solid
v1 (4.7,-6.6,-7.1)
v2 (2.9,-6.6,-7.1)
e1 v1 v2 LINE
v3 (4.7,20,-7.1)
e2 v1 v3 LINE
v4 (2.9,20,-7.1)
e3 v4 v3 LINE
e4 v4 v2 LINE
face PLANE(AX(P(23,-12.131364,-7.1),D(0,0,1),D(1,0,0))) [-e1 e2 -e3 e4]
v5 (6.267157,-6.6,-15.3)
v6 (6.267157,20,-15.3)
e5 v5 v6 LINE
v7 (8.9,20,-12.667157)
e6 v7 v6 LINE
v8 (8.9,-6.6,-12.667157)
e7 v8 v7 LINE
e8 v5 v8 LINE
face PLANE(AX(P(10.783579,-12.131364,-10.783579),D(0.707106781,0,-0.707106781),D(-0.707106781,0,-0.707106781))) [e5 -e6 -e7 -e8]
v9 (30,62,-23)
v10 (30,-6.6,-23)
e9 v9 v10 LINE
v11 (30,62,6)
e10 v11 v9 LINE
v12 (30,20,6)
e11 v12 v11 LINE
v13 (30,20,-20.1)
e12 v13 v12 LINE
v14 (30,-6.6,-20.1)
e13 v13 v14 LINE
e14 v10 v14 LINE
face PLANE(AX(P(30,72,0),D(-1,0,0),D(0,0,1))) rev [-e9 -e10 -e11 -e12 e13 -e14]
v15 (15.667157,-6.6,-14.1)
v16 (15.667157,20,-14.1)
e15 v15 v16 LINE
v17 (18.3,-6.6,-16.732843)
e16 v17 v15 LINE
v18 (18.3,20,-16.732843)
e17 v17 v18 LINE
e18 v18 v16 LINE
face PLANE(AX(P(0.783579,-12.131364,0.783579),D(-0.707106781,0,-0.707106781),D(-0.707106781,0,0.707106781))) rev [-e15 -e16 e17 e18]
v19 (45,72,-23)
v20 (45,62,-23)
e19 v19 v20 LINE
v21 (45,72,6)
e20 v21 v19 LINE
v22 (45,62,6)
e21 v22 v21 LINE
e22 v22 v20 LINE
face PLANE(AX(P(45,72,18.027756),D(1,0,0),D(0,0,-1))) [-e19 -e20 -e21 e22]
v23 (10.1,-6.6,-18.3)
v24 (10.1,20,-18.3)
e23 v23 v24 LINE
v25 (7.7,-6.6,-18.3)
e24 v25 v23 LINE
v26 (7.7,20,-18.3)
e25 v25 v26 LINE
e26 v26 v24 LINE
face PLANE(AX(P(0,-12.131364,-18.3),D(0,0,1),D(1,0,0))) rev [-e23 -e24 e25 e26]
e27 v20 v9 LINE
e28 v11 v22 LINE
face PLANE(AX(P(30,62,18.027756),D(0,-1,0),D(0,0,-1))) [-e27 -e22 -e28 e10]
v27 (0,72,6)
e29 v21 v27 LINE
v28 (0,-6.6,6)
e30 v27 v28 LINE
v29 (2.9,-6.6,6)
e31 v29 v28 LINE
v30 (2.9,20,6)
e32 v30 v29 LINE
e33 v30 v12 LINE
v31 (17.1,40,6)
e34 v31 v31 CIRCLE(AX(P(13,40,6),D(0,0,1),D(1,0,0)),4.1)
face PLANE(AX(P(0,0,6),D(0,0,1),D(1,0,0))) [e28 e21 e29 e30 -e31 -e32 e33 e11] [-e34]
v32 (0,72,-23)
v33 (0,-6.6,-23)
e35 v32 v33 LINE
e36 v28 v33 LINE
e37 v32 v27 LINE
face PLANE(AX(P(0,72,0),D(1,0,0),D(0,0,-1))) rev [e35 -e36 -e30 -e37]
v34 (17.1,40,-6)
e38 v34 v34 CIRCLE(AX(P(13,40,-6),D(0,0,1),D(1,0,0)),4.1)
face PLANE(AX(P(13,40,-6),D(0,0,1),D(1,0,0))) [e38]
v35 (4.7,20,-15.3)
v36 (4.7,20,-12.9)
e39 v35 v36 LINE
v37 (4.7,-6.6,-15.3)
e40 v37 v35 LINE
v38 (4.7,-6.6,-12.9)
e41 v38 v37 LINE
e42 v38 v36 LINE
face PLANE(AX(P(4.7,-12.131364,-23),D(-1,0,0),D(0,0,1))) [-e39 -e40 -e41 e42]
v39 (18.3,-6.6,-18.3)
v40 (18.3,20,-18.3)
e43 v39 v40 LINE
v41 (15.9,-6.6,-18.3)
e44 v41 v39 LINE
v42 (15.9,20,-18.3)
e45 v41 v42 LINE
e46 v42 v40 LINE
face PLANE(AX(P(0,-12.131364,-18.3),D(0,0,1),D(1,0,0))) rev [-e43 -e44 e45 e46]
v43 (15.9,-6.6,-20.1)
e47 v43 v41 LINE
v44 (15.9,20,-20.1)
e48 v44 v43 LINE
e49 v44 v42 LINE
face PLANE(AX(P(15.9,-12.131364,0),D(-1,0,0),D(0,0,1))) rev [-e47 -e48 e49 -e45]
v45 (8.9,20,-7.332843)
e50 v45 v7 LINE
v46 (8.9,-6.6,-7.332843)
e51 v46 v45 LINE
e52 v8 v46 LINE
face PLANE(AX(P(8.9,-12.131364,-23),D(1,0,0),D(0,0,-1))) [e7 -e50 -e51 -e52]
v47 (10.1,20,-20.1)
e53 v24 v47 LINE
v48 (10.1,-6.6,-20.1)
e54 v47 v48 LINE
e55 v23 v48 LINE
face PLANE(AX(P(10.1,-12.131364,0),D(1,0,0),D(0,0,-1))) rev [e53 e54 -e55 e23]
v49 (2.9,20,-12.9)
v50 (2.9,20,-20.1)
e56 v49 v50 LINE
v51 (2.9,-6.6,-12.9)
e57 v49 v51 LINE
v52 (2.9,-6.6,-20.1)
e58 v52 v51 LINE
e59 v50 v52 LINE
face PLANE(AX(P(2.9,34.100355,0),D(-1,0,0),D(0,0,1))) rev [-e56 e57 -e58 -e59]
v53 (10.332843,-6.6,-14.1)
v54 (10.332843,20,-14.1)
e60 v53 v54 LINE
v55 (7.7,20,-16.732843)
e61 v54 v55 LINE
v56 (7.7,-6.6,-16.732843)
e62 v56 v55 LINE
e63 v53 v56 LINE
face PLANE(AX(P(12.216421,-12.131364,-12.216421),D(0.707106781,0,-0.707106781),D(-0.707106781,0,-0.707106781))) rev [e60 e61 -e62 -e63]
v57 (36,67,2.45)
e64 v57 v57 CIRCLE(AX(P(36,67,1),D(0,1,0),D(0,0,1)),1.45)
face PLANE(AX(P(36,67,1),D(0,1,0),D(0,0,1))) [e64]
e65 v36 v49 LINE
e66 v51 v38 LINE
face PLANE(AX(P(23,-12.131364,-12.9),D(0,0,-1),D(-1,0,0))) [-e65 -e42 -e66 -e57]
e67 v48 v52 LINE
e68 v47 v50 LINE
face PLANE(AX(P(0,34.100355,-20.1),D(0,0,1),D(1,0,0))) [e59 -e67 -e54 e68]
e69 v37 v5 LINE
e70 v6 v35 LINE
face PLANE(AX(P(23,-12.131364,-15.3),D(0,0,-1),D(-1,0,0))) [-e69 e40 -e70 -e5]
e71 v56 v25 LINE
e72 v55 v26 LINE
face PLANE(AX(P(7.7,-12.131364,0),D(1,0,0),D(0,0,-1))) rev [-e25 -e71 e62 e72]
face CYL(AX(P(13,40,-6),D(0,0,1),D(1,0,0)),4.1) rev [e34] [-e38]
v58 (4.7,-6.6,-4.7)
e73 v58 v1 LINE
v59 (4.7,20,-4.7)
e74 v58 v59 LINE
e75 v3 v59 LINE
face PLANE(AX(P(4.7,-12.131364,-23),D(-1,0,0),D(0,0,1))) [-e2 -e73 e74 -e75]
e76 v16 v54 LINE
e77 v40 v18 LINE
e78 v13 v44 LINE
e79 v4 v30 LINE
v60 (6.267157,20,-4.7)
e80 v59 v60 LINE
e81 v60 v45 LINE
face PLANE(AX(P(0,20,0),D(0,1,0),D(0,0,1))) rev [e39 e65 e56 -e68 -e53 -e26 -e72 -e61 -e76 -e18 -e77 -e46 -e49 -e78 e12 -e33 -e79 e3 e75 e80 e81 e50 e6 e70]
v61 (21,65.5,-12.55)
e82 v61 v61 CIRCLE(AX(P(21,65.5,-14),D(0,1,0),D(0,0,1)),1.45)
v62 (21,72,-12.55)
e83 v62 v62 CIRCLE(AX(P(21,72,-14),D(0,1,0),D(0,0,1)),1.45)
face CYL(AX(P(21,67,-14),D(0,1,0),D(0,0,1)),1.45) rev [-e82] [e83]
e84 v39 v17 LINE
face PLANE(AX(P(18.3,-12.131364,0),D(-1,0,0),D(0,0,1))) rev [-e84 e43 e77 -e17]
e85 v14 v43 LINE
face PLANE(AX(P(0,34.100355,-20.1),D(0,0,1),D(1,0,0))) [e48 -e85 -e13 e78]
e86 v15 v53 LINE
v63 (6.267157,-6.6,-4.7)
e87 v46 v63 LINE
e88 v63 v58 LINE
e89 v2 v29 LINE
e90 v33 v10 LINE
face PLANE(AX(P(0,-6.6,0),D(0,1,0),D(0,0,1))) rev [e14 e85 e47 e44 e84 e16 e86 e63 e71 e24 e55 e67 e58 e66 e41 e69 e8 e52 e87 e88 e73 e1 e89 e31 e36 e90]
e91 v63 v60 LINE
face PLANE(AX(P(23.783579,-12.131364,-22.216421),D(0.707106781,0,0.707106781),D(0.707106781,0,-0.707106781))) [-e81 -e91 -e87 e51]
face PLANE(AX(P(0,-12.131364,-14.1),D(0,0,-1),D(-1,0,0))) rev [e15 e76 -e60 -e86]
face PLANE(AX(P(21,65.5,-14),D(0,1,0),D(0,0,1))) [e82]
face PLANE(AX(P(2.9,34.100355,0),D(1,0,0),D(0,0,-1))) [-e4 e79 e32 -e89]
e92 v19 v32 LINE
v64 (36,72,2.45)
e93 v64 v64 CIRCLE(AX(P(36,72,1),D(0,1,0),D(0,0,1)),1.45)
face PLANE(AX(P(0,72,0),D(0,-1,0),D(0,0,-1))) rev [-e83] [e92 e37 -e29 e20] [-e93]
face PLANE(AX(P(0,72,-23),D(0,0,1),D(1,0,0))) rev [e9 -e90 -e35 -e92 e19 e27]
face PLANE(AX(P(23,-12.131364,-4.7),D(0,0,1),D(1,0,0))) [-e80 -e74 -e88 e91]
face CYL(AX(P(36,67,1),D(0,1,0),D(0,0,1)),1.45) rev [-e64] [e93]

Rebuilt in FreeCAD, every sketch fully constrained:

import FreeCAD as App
import Part
import Sketcher
from FreeCAD import Vector
Q = App.Units.Quantity


def add_polygon(sketch, points):
    """Adds a closed chain of lines whose ends are joined by coincident constraints."""
    first, n = sketch.GeometryCount, len(points)
    for a, b in zip(points, points[1:] + points[:1]):
        sketch.addGeometry(Part.LineSegment(App.Vector(*a, 0), App.Vector(*b, 0)), False)
    for i in range(n):
        sketch.addConstraint(Sketcher.Constraint("Coincident", first + i, 2, first + (i + 1) % n, 1))

doc = App.newDocument("Part")
body = doc.addObject("PartDesign::Body", "Body")

# Sketch on XZ plane
sketch1 = doc.addObject("Sketcher::SketchObject", "Sketch")
body.addObject(sketch1)
sketch1.AttachmentSupport = (doc.XZ_Plane, [""])
sketch1.MapMode = "FlatFace"
add_polygon(sketch1, [(0, -23), (0, 0), (30, 0), (30, -23)])  # lines 0-3
sketch1.addConstraint(Sketcher.Constraint("Vertical", 0))
sketch1.addConstraint(Sketcher.Constraint("Horizontal", 1))
sketch1.addConstraint(Sketcher.Constraint("Vertical", 2))
sketch1.addConstraint(Sketcher.Constraint("Horizontal", 3))
sketch1.addConstraint(Sketcher.Constraint("Coincident", 0, 2, -1, 1))
sketch1.addConstraint(Sketcher.Constraint("DistanceX", 1, 1, 1, 2, Q("30 mm")))
sketch1.addConstraint(Sketcher.Constraint("DistanceY", 0, 1, 0, 2, Q("23 mm")))
pad1 = doc.addObject("PartDesign::Pad", "Pad")
body.addObject(pad1)
pad1.Profile = sketch1
pad1.Length = 72
pad1.Reversed = True

# Sketch on XZ plane
sketch2 = doc.addObject("Sketcher::SketchObject", "Sketch001")
body.addObject(sketch2)
sketch2.AttachmentSupport = (doc.XZ_Plane, [""])
sketch2.MapMode = "FlatFace"
add_polygon(sketch2, [(3, 0), (3, -20), (30, -20), (30, 0)])  # lines 0-3
sketch2.addConstraint(Sketcher.Constraint("Vertical", 0))
sketch2.addConstraint(Sketcher.Constraint("Horizontal", 1))
sketch2.addConstraint(Sketcher.Constraint("Vertical", 2))
sketch2.addConstraint(Sketcher.Constraint("Horizontal", 3))
sketch2.addConstraint(Sketcher.Constraint("PointOnObject", 2, 2, -1))
sketch2.addConstraint(Sketcher.Constraint("DistanceX", 1, 1, 1, 2, Q("27 mm")))
sketch2.addConstraint(Sketcher.Constraint("DistanceY", 0, 2, 0, 1, Q("20 mm")))
sketch2.addConstraint(Sketcher.Constraint("DistanceX", -1, 1, 0, 2, Q("3 mm")))
pocket1 = doc.addObject("PartDesign::Pocket", "Pocket")
body.addObject(pocket1)
pocket1.Profile = sketch2
pocket1.Length = 20

# Sketch on XY plane
sketch3 = doc.addObject("Sketcher::SketchObject", "Sketch002")
body.addObject(sketch3)
sketch3.AttachmentSupport = (doc.XY_Plane, [""])
sketch3.MapMode = "FlatFace"
sketch3.addGeometry(Part.Circle(Vector(13, 40, 0), Vector(0, 0, 1), 4.1), False)
sketch3.addConstraint(Sketcher.Constraint("Diameter", 0, Q("8.2 mm")))
sketch3.addConstraint(Sketcher.Constraint("DistanceX", -1, 1, 0, 3, Q("13 mm")))
sketch3.addConstraint(Sketcher.Constraint("DistanceY", -1, 1, 0, 3, Q("40 mm")))
pocket2 = doc.addObject("PartDesign::Pocket", "Pocket001")
body.addObject(pocket2)
pocket2.Profile = sketch3
pocket2.Length = 6

# Sketch on XY plane
sketch4 = doc.addObject("Sketcher::SketchObject", "Sketch003")
body.addObject(sketch4)
sketch4.AttachmentSupport = (doc.XY_Plane, [""])
sketch4.MapMode = "FlatFace"
sketch4.AttachmentOffset = App.Placement(Vector(0, 0, -23), App.Rotation())
add_polygon(sketch4, [(45, 72), (45, 62), (30, 62), (30, 72)])  # lines 0-3
sketch4.addConstraint(Sketcher.Constraint("Vertical", 0))
sketch4.addConstraint(Sketcher.Constraint("Horizontal", 1))
sketch4.addConstraint(Sketcher.Constraint("Vertical", 2))
sketch4.addConstraint(Sketcher.Constraint("Horizontal", 3))
sketch4.addConstraint(Sketcher.Constraint("DistanceX", 1, 2, 1, 1, Q("15 mm")))
sketch4.addConstraint(Sketcher.Constraint("DistanceY", 0, 2, 0, 1, Q("10 mm")))
sketch4.addConstraint(Sketcher.Constraint("DistanceX", -1, 1, 0, 2, Q("45 mm")))
sketch4.addConstraint(Sketcher.Constraint("DistanceY", -1, 1, 0, 2, Q("62 mm")))
pad2 = doc.addObject("PartDesign::Pad", "Pad001")
body.addObject(pad2)
pad2.Profile = sketch4
pad2.Length = 23

# Sketch on XZ plane
sketch5 = doc.addObject("Sketcher::SketchObject", "Sketch004")
body.addObject(sketch5)
sketch5.AttachmentSupport = (doc.XZ_Plane, [""])
sketch5.MapMode = "FlatFace"
sketch5.AttachmentOffset = App.Placement(Vector(0, 0, -20), App.Rotation())
add_polygon(sketch5, [(10.1, -20), (15.9, -20), (15.9, -18.3), (18.3, -18.3), (18.3, -16.7), (15.7, -14.1), (10.3, -14.1), (7.7, -16.7), (7.7, -18.3), (10.1, -18.3)])  # lines 0-9
sketch5.addConstraint(Sketcher.Constraint("Horizontal", 0))
sketch5.addConstraint(Sketcher.Constraint("Vertical", 1))
sketch5.addConstraint(Sketcher.Constraint("Horizontal", 2))
sketch5.addConstraint(Sketcher.Constraint("Vertical", 3))
sketch5.addConstraint(Sketcher.Constraint("Horizontal", 5))
sketch5.addConstraint(Sketcher.Constraint("Vertical", 7))
sketch5.addConstraint(Sketcher.Constraint("Horizontal", 8))
sketch5.addConstraint(Sketcher.Constraint("Vertical", 9))
sketch5.addConstraint(Sketcher.Constraint("Perpendicular", 4, 6))
sketch5.addConstraint(Sketcher.Constraint("Horizontal", 3, 2, 6, 2))
sketch5.addConstraint(Sketcher.Constraint("Horizontal", 2, 2, 7, 2))
sketch5.addConstraint(Sketcher.Constraint("Equal", 2, 8))
sketch5.addConstraint(Sketcher.Constraint("Equal", 4, 6))
sketch5.addConstraint(Sketcher.Constraint("DistanceX", 0, 1, 0, 2, Q("5.8 mm")))
sketch5.addConstraint(Sketcher.Constraint("DistanceX", 2, 1, 2, 2, Q("2.4 mm")))
sketch5.addConstraint(Sketcher.Constraint("DistanceY", 1, 1, 1, 2, Q("1.7 mm")))
sketch5.addConstraint(Sketcher.Constraint("DistanceY", 0, 2, -1, 1, Q("20 mm")))
sketch5.addConstraint(Sketcher.Constraint("DistanceX", -1, 1, 0, 2, Q("15.9 mm")))
sketch5.addConstraint(Sketcher.Constraint("DistanceY", 4, 2, -1, 1, Q("14.1 mm")))
sketch5.addConstraint(Sketcher.Constraint("Distance", 4, Q("3.723402 mm")))
pad3 = doc.addObject("PartDesign::Pad", "Pad002")
body.addObject(pad3)
pad3.Profile = sketch5
pad3.Length = 20
doc.recompute()

datumplane = doc.addObject("PartDesign::Plane", "DatumPlane")
body.addObject(datumplane)
datumplane.Placement = App.Placement(Vector(11.5, 0, -11.5), App.Rotation(Vector(0.707106781, 0, 0.707106781), Vector(0, -1, 0), Vector(0.707106781, 0, -0.707106781), "ZXY"))
mirrored = doc.addObject("PartDesign::Mirrored", "Mirrored")
body.addObject(mirrored)
mirrored.Originals = [pad3]
mirrored.MirrorPlane = (datumplane, [""])
body.Tip = mirrored

# Sketch on XY plane
sketch6 = doc.addObject("Sketcher::SketchObject", "Sketch005")
body.addObject(sketch6)
sketch6.AttachmentSupport = (doc.XY_Plane, [""])
sketch6.MapMode = "FlatFace"
sketch6.AttachmentOffset = App.Placement(Vector(0, 0, 6), App.Rotation())
add_polygon(sketch6, [(0, 0), (3, 0), (3, 20), (30, 20), (30, 62), (45, 62), (45, 72), (0, 72)])  # lines 0-7
sketch6.addGeometry(Part.Circle(Vector(13, 40, 0), Vector(0, 0, 1), 4.1), False)  # 8
sketch6.addConstraint(Sketcher.Constraint("Horizontal", 0))
sketch6.addConstraint(Sketcher.Constraint("Vertical", 1))
sketch6.addConstraint(Sketcher.Constraint("Horizontal", 2))
sketch6.addConstraint(Sketcher.Constraint("Vertical", 3))
sketch6.addConstraint(Sketcher.Constraint("Horizontal", 4))
sketch6.addConstraint(Sketcher.Constraint("Vertical", 5))
sketch6.addConstraint(Sketcher.Constraint("Horizontal", 6))
sketch6.addConstraint(Sketcher.Constraint("Vertical", 7))
sketch6.addConstraint(Sketcher.Constraint("Coincident", 7, 2, -1, 1))
sketch6.addConstraint(Sketcher.Constraint("Diameter", 8, Q("8.2 mm")))
sketch6.addConstraint(Sketcher.Constraint("DistanceX", 0, 1, 0, 2, Q("3 mm")))
sketch6.addConstraint(Sketcher.Constraint("DistanceX", 2, 1, 2, 2, Q("27 mm")))
sketch6.addConstraint(Sketcher.Constraint("DistanceX", 4, 1, 4, 2, Q("15 mm")))
sketch6.addConstraint(Sketcher.Constraint("DistanceY", 1, 1, 1, 2, Q("20 mm")))
sketch6.addConstraint(Sketcher.Constraint("DistanceY", 3, 1, 3, 2, Q("42 mm")))
sketch6.addConstraint(Sketcher.Constraint("DistanceY", 5, 1, 5, 2, Q("10 mm")))
sketch6.addConstraint(Sketcher.Constraint("DistanceX", -1, 1, 8, 3, Q("13 mm")))
sketch6.addConstraint(Sketcher.Constraint("DistanceY", -1, 1, 8, 3, Q("40 mm")))
pad4 = doc.addObject("PartDesign::Pad", "Pad003")
body.addObject(pad4)
pad4.Profile = sketch6
pad4.Length = 6
pad4.Reversed = True

# Sketch on XZ plane
sketch7 = doc.addObject("Sketcher::SketchObject", "Sketch006")
body.addObject(sketch7)
sketch7.AttachmentSupport = (doc.XZ_Plane, [""])
sketch7.MapMode = "FlatFace"
sketch7.AttachmentOffset = App.Placement(Vector(0, 0, -72), App.Rotation())
sketch7.addGeometry(Part.Circle(Vector(21, -14, 0), Vector(0, 0, 1), 1.4), False)
sketch7.addGeometry(Part.Circle(Vector(36, 1, 0), Vector(0, 0, 1), 1.4), False)
sketch7.addConstraint(Sketcher.Constraint("Equal", 0, 1))
sketch7.addConstraint(Sketcher.Constraint("Diameter", 0, Q("2.9 mm")))
sketch7.addConstraint(Sketcher.Constraint("DistanceX", -1, 1, 0, 3, Q("21 mm")))
sketch7.addConstraint(Sketcher.Constraint("DistanceY", 0, 3, -1, 1, Q("14 mm")))
sketch7.addConstraint(Sketcher.Constraint("DistanceX", -1, 1, 1, 3, Q("36 mm")))
sketch7.addConstraint(Sketcher.Constraint("DistanceY", -1, 1, 1, 3, Q("1 mm")))
pocket3 = doc.addObject("PartDesign::Pocket", "Pocket002")
body.addObject(pocket3)
pocket3.Profile = sketch7
pocket3.Length = 5
pocket3.Reversed = True

# Sketch on XZ plane
sketch8 = doc.addObject("Sketcher::SketchObject", "Sketch007")
body.addObject(sketch8)
sketch8.AttachmentSupport = (doc.XZ_Plane, [""])
sketch8.MapMode = "FlatFace"
sketch8.AttachmentOffset = App.Placement(Vector(0, 0, -67), App.Rotation())
sketch8.addGeometry(Part.Circle(Vector(21, -14, 0), Vector(0, 0, 1), 1.4), False)
sketch8.addConstraint(Sketcher.Constraint("Diameter", 0, Q("2.9 mm")))
sketch8.addConstraint(Sketcher.Constraint("DistanceX", -1, 1, 0, 3, Q("21 mm")))
sketch8.addConstraint(Sketcher.Constraint("DistanceY", 0, 3, -1, 1, Q("14 mm")))
pocket4 = doc.addObject("PartDesign::Pocket", "Pocket003")
body.addObject(pocket4)
pocket4.Profile = sketch8
pocket4.Length = 1.5
pocket4.Reversed = True

# Sketch on XZ plane
sketch9 = doc.addObject("Sketcher::SketchObject", "Sketch008")
body.addObject(sketch9)
sketch9.AttachmentSupport = (doc.XZ_Plane, [""])
sketch9.MapMode = "FlatFace"
add_polygon(sketch9, [(10.1, -20.1), (10.1, -20), (3, -20), (3, -12.9), (2.9, -12.9), (2.9, -20.1)])  # lines 0-5
add_polygon(sketch9, [(15.9, -20), (15.9, -20.1), (30, -20.1), (30, -20)])  # lines 6-9
add_polygon(sketch9, [(2.9, 6), (2.9, -7.1), (3, -7.1), (3, 6)])  # lines 10-13
sketch9.addConstraint(Sketcher.Constraint("Vertical", 0))
sketch9.addConstraint(Sketcher.Constraint("Horizontal", 1))
sketch9.addConstraint(Sketcher.Constraint("Vertical", 2))
sketch9.addConstraint(Sketcher.Constraint("Horizontal", 3))
sketch9.addConstraint(Sketcher.Constraint("Vertical", 4))
sketch9.addConstraint(Sketcher.Constraint("Horizontal", 5))
sketch9.addConstraint(Sketcher.Constraint("Vertical", 6))
sketch9.addConstraint(Sketcher.Constraint("Horizontal", 7))
sketch9.addConstraint(Sketcher.Constraint("Vertical", 8))
sketch9.addConstraint(Sketcher.Constraint("Horizontal", 9))
sketch9.addConstraint(Sketcher.Constraint("Vertical", 10))
sketch9.addConstraint(Sketcher.Constraint("Horizontal", 11))
sketch9.addConstraint(Sketcher.Constraint("Vertical", 12))
sketch9.addConstraint(Sketcher.Constraint("Horizontal", 13))
sketch9.addConstraint(Sketcher.Constraint("Horizontal", 5, 2, 6, 2))
sketch9.addConstraint(Sketcher.Constraint("Horizontal", 1, 2, 8, 2))
sketch9.addConstraint(Sketcher.Constraint("Vertical", 4, 2, 10, 2))
sketch9.addConstraint(Sketcher.Constraint("Vertical", 2, 2, 11, 2))
sketch9.addConstraint(Sketcher.Constraint("Equal", 13, 0))
sketch9.addConstraint(Sketcher.Constraint("Equal", 1, 2))
sketch9.addConstraint(Sketcher.Constraint("DistanceX", 1, 2, 1, 1, Q("7.1 mm")))
sketch9.addConstraint(Sketcher.Constraint("DistanceX", 3, 2, 3, 1, Q("0.1 mm")))
sketch9.addConstraint(Sketcher.Constraint("DistanceX", 7, 1, 7, 2, Q("14.1 mm")))
sketch9.addConstraint(Sketcher.Constraint("DistanceY", 10, 2, 10, 1, Q("13.1 mm")))
sketch9.addConstraint(Sketcher.Constraint("DistanceY", 0, 2, -1, 1, Q("20 mm")))
sketch9.addConstraint(Sketcher.Constraint("DistanceX", -1, 1, 1, 2, Q("3 mm")))
sketch9.addConstraint(Sketcher.Constraint("DistanceX", -1, 1, 7, 2, Q("30 mm")))
sketch9.addConstraint(Sketcher.Constraint("DistanceY", -1, 1, 12, 2, Q("6 mm")))
pocket5 = doc.addObject("PartDesign::Pocket", "Pocket004")
body.addObject(pocket5)
pocket5.Profile = sketch9
pocket5.Length = 20

# Sketch on XZ plane
sketch10 = doc.addObject("Sketcher::SketchObject", "Sketch009")
body.addObject(sketch10)
sketch10.AttachmentSupport = (doc.XZ_Plane, [""])
sketch10.MapMode = "FlatFace"
add_polygon(sketch10, [(4.7, -7.1), (2.9, -7.1), (2.9, 6), (0, 6), (0, -23), (30, -23), (30, -20.1), (15.9, -20.1), (15.9, -18.3), (18.3, -18.3), (18.3, -16.7), (15.7, -14.1), (10.3, -14.1), (7.7, -16.7), (7.7, -18.3), (10.1, -18.3), (10.1, -20.1), (2.9, -20.1), (2.9, -12.9), (4.7, -12.9), (4.7, -15.3), (6.3, -15.3), (8.9, -12.7), (8.9, -7.3), (6.3, -4.7), (4.7, -4.7)])  # lines 0-25
sketch10.addConstraint(Sketcher.Constraint("Horizontal", 0))
sketch10.addConstraint(Sketcher.Constraint("Vertical", 1))
sketch10.addConstraint(Sketcher.Constraint("Horizontal", 2))
sketch10.addConstraint(Sketcher.Constraint("Vertical", 3))
sketch10.addConstraint(Sketcher.Constraint("Horizontal", 4))
sketch10.addConstraint(Sketcher.Constraint("Vertical", 5))
sketch10.addConstraint(Sketcher.Constraint("Horizontal", 6))
sketch10.addConstraint(Sketcher.Constraint("Vertical", 7))
sketch10.addConstraint(Sketcher.Constraint("Horizontal", 8))
sketch10.addConstraint(Sketcher.Constraint("Vertical", 9))
sketch10.addConstraint(Sketcher.Constraint("Horizontal", 11))
sketch10.addConstraint(Sketcher.Constraint("Vertical", 13))
sketch10.addConstraint(Sketcher.Constraint("Horizontal", 14))
sketch10.addConstraint(Sketcher.Constraint("Vertical", 15))
sketch10.addConstraint(Sketcher.Constraint("Horizontal", 16))
sketch10.addConstraint(Sketcher.Constraint("Vertical", 17))
sketch10.addConstraint(Sketcher.Constraint("Horizontal", 18))
sketch10.addConstraint(Sketcher.Constraint("Vertical", 19))
sketch10.addConstraint(Sketcher.Constraint("Horizontal", 20))
sketch10.addConstraint(Sketcher.Constraint("Vertical", 22))
sketch10.addConstraint(Sketcher.Constraint("Horizontal", 24))
sketch10.addConstraint(Sketcher.Constraint("Vertical", 25))
sketch10.addConstraint(Sketcher.Constraint("PointOnObject", 2, 2, -2))
sketch10.addConstraint(Sketcher.Constraint("Perpendicular", 10, 12))
sketch10.addConstraint(Sketcher.Constraint("Parallel", 12, 21))
sketch10.addConstraint(Sketcher.Constraint("Perpendicular", 21, 23))
sketch10.addConstraint(Sketcher.Constraint("Horizontal", 9, 2, 12, 2))
sketch10.addConstraint(Sketcher.Constraint("Horizontal", 8, 2, 13, 2))
sketch10.addConstraint(Sketcher.Constraint("Horizontal", 6, 2, 15, 2))
sketch10.addConstraint(Sketcher.Constraint("Vertical", 1, 2, 16, 2))
sketch10.addConstraint(Sketcher.Constraint("Vertical", 20, 2, 23, 2))
sketch10.addConstraint(Sketcher.Constraint("Vertical", 19, 2, 24, 2))
sketch10.addConstraint(Sketcher.Constraint("Equal", 8, 14))
sketch10.addConstraint(Sketcher.Constraint("Equal", 2, 5))
sketch10.addConstraint(Sketcher.Constraint("Equal", 18, 7))
sketch10.addConstraint(Sketcher.Constraint("Equal", 24, 9))
sketch10.addConstraint(Sketcher.Constraint("Equal", 16, 17))
sketch10.addConstraint(Sketcher.Constraint("Equal", 14, 19))
sketch10.addConstraint(Sketcher.Constraint("Equal", 11, 22))
sketch10.addConstraint(Sketcher.Constraint("Equal", 19, 25))
sketch10.addConstraint(Sketcher.Constraint("Equal", 10, 12))
sketch10.addConstraint(Sketcher.Constraint("Equal", 12, 21))
sketch10.addConstraint(Sketcher.Constraint("DistanceX", 4, 1, 4, 2, Q("30 mm")))
sketch10.addConstraint(Sketcher.Constraint("DistanceY", 3, 2, 3, 1, Q("29 mm")))
sketch10.addConstraint(Sketcher.Constraint("DistanceX", 0, 2, 0, 1, Q("1.8 mm")))
sketch10.addConstraint(Sketcher.Constraint("DistanceX", 2, 2, 2, 1, Q("2.9 mm")))
sketch10.addConstraint(Sketcher.Constraint("DistanceX", 6, 2, 6, 1, Q("14.1 mm")))
sketch10.addConstraint(Sketcher.Constraint("DistanceX", 8, 1, 8, 2, Q("2.4 mm")))
sketch10.addConstraint(Sketcher.Constraint("DistanceX", 16, 2, 16, 1, Q("7.2 mm")))
sketch10.addConstraint(Sketcher.Constraint("DistanceY", -1, 1, 1, 2, Q("6 mm")))
sketch10.addConstraint(Sketcher.Constraint("DistanceY", 6, 2, 10, 2, Q("6 mm")))
sketch10.addConstraint(Sketcher.Constraint("Distance", 10, Q("3.723402 mm")))
pad5 = doc.addObject("PartDesign::Pad", "Pad004")
body.addObject(pad5)
pad5.Profile = sketch10
pad5.Length = 6.6

doc.recompute()
